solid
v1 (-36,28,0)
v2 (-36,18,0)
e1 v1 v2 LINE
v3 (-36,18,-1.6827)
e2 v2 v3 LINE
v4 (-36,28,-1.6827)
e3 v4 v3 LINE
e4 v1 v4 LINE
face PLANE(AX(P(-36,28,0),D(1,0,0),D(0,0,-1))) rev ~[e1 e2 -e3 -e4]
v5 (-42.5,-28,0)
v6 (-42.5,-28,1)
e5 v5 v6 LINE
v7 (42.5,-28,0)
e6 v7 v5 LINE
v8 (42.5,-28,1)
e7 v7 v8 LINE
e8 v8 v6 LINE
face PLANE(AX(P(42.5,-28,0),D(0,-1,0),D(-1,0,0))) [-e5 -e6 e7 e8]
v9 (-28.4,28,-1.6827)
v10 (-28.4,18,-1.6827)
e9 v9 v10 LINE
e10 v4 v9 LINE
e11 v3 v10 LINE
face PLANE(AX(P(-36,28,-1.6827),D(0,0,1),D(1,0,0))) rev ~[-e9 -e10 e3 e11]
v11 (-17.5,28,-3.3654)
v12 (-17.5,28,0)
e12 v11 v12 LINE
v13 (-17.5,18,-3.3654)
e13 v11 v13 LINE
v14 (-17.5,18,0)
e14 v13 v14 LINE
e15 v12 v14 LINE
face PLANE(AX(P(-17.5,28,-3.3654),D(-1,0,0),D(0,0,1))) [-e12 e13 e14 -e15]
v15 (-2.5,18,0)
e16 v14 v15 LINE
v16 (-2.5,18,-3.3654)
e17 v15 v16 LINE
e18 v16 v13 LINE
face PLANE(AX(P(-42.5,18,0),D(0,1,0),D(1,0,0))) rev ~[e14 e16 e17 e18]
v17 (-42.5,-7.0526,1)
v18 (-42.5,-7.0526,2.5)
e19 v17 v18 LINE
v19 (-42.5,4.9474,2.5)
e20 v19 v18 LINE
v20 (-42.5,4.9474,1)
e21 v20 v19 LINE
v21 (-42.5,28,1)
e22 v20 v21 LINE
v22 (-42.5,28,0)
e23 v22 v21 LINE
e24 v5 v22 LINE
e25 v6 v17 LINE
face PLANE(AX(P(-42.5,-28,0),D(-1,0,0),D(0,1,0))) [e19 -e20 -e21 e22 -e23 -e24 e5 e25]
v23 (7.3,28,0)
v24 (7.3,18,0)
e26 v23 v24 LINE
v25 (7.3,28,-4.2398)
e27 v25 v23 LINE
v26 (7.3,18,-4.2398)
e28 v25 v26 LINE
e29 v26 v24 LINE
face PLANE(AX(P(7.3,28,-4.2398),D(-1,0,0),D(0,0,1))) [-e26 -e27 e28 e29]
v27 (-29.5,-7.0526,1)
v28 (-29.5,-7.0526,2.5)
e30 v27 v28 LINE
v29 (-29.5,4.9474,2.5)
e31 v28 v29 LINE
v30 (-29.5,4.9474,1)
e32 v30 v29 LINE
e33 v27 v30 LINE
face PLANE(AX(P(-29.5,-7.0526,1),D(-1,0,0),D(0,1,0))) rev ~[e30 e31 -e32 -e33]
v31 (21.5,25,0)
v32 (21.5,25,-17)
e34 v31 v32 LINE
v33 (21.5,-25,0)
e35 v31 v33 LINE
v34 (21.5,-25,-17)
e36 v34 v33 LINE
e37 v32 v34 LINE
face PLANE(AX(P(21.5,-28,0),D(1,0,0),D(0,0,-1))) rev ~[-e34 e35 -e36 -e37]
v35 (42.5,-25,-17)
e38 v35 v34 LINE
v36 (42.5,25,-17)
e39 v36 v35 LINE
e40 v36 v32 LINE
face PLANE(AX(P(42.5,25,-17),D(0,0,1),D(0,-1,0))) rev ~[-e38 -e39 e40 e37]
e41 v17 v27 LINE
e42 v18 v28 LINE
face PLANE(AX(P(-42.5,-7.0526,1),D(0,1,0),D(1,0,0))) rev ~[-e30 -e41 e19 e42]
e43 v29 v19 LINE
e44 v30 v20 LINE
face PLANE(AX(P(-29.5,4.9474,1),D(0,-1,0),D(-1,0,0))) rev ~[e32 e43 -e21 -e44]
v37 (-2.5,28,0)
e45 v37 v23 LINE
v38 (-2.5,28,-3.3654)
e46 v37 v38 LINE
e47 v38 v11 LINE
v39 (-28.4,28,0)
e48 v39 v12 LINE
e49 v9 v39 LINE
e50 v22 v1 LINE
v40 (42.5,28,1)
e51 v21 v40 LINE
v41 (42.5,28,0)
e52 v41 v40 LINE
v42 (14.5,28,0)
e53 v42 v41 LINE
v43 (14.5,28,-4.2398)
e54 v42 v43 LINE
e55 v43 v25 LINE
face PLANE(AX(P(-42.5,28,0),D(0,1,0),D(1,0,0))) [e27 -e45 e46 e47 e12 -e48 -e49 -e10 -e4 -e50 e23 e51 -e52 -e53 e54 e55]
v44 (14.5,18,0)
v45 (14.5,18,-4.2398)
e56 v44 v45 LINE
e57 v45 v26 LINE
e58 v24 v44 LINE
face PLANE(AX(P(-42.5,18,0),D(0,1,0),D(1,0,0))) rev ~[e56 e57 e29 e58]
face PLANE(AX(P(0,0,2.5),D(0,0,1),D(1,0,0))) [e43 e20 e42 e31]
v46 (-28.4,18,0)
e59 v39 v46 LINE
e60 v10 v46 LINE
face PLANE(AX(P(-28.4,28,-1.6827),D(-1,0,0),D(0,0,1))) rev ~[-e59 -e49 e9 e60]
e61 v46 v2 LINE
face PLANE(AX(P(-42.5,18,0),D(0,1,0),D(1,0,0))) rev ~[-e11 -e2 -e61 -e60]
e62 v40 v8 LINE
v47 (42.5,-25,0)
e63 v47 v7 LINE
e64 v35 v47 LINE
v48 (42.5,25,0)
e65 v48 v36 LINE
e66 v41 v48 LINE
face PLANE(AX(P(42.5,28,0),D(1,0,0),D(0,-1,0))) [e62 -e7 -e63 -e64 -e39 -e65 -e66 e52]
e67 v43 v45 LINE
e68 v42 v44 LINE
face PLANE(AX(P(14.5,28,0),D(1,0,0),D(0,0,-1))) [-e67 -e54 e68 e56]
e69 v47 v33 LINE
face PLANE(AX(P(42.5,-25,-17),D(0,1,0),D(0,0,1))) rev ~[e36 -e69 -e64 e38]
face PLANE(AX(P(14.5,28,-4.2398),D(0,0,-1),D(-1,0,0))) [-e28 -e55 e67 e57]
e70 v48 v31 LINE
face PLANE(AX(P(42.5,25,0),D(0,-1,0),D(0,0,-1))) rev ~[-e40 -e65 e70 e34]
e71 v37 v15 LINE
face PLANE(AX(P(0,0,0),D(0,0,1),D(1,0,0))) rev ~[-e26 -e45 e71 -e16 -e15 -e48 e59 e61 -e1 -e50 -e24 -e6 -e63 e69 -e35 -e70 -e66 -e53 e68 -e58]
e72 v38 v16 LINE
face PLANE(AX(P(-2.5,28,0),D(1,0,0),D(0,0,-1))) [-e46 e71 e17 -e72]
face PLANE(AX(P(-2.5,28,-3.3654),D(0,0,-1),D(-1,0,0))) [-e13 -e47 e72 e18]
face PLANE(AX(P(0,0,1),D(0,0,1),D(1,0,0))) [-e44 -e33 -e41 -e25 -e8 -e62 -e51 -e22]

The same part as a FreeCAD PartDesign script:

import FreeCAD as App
import Part
import Sketcher
Q = App.Units.Quantity


def add_polygon(sketch, points):
    """Adds a closed chain of lines whose ends are joined by coincident constraints."""
    first, n = sketch.GeometryCount, len(points)
    for a, b in zip(points, points[1:] + points[:1]):
        sketch.addGeometry(Part.LineSegment(App.Vector(*a, 0), App.Vector(*b, 0)), False)
    for i in range(n):
        sketch.addConstraint(Sketcher.Constraint("Coincident", first + i, 2, first + (i + 1) % n, 1))

doc = App.newDocument("Part")
body = doc.addObject("PartDesign::Body", "Body")

sketch1 = body.newObject("Sketcher::SketchObject", "Sketch")
sketch1.AttachmentSupport = (doc.getObject("XY_Plane"), [""])
sketch1.MapMode = "FlatFace"
add_polygon(sketch1, [(-42, -28), (42, -28), (42, 28), (-42, 28)])
sketch1.addConstraint(Sketcher.Constraint("Horizontal", 0))
sketch1.addConstraint(Sketcher.Constraint("Vertical", 1))
sketch1.addConstraint(Sketcher.Constraint("Horizontal", 2))
sketch1.addConstraint(Sketcher.Constraint("Vertical", 3))
sketch1.addConstraint(Sketcher.Constraint("Symmetric", 0, 2, 2, 2, -1, 1))
sketch1.addConstraint(Sketcher.Constraint("DistanceX", 0, 1, 0, 2, Q("85 mm")))
sketch1.addConstraint(Sketcher.Constraint("DistanceY", 1, 1, 1, 2, Q("56 mm")))
pad1 = body.newObject("PartDesign::Pad", "Pad")
pad1.Profile = sketch1
pad1.Length = 1

sketch2 = body.newObject("Sketcher::SketchObject", "Sketch001")
sketch2.AttachmentSupport = (doc.getObject("YZ_Plane"), [""])
sketch2.MapMode = "FlatFace"
sketch2.AttachmentOffset = App.Placement(App.Vector(0, 0, 42.5), App.Rotation())
add_polygon(sketch2, [(25, -17), (25, 0), (-25, 0), (-25, -17)])
sketch2.addConstraint(Sketcher.Constraint("Vertical", 0))
sketch2.addConstraint(Sketcher.Constraint("Horizontal", 1))
sketch2.addConstraint(Sketcher.Constraint("Vertical", 2))
sketch2.addConstraint(Sketcher.Constraint("Horizontal", 3))
sketch2.addConstraint(Sketcher.Constraint("Symmetric", 0, 2, 1, 2, -1, 1))
sketch2.addConstraint(Sketcher.Constraint("DistanceY", 0, 1, 0, 2, Q("17 mm")))
sketch2.addConstraint(Sketcher.Constraint("DistanceX", 1, 2, 1, 1, Q("50 mm")))
pad2 = body.newObject("PartDesign::Pad", "Pad001")
pad2.Profile = sketch2
pad2.Length = 21
pad2.Reversed = True

sketch3 = body.newObject("Sketcher::SketchObject", "Sketch002")
sketch3.AttachmentSupport = (doc.getObject("XZ_Plane"), [""])
sketch3.MapMode = "FlatFace"
sketch3.AttachmentOffset = App.Placement(App.Vector(0, 0, -28), App.Rotation())
add_polygon(sketch3, [(7.3, -4.2), (7.3, 0), (14.5, 0), (14.5, -4.2)])
add_polygon(sketch3, [(-17.5, -3.4), (-17.5, 0), (-2.5, 0), (-2.5, -3.4)])
add_polygon(sketch3, [(-28.4, -1.7), (-36, -1.7), (-36, 0), (-28.4, 0)])
sketch3.addConstraint(Sketcher.Constraint("Vertical", 0))
sketch3.addConstraint(Sketcher.Constraint("Horizontal", 1))
sketch3.addConstraint(Sketcher.Constraint("Vertical", 2))
sketch3.addConstraint(Sketcher.Constraint("Horizontal", 3))
sketch3.addConstraint(Sketcher.Constraint("Vertical", 4))
sketch3.addConstraint(Sketcher.Constraint("Horizontal", 5))
sketch3.addConstraint(Sketcher.Constraint("Vertical", 6))
sketch3.addConstraint(Sketcher.Constraint("Horizontal", 7))
sketch3.addConstraint(Sketcher.Constraint("Horizontal", 8))
sketch3.addConstraint(Sketcher.Constraint("Vertical", 9))
sketch3.addConstraint(Sketcher.Constraint("Horizontal", 10))
sketch3.addConstraint(Sketcher.Constraint("Vertical", 11))
sketch3.addConstraint(Sketcher.Constraint("PointOnObject", 0, 2, -1))
sketch3.addConstraint(Sketcher.Constraint("PointOnObject", 4, 2, -1))
sketch3.addConstraint(Sketcher.Constraint("PointOnObject", 9, 2, -1))
sketch3.addConstraint(Sketcher.Constraint("DistanceX", 5, 1, 5, 2, Q("15 mm")))
sketch3.addConstraint(Sketcher.Constraint("DistanceX", 1, 1, 1, 2, Q("7.2 mm")))
sketch3.addConstraint(Sketcher.Constraint("DistanceX", 8, 2, 8, 1, Q("7.6 mm")))
sketch3.addConstraint(Sketcher.Constraint("DistanceX", 8, 2, -1, 1, Q("36 mm")))
sketch3.addConstraint(Sketcher.Constraint("DistanceX", 4, 2, 1, 2, Q("32 mm")))
sketch3.addConstraint(Sketcher.Constraint("DistanceX", -1, 1, 0, 2, Q("7.3 mm")))
sketch3.addConstraint(Sketcher.Constraint("DistanceY", 0, 1, 0, 2, Q("4.2398 mm")))
sketch3.addConstraint(Sketcher.Constraint("DistanceY", 4, 1, 4, 2, Q("3.3654 mm")))
sketch3.addConstraint(Sketcher.Constraint("DistanceY", 9, 1, 9, 2, Q("1.6827 mm")))
pad3 = body.newObject("PartDesign::Pad", "Pad002")
pad3.Profile = sketch3
pad3.Length = 10

sketch4 = body.newObject("Sketcher::SketchObject", "Sketch003")
sketch4.AttachmentSupport = (doc.getObject("XY_Plane"), [""])
sketch4.MapMode = "FlatFace"
sketch4.AttachmentOffset = App.Placement(App.Vector(0, 0, 1), App.Rotation())
add_polygon(sketch4, [(-42, 5), (-42, -7), (-30, -7), (-30, 5)])
sketch4.addConstraint(Sketcher.Constraint("Vertical", 0))
sketch4.addConstraint(Sketcher.Constraint("Horizontal", 1))
sketch4.addConstraint(Sketcher.Constraint("Vertical", 2))
sketch4.addConstraint(Sketcher.Constraint("Horizontal", 3))
sketch4.addConstraint(Sketcher.Constraint("DistanceX", 1, 1, 1, 2, Q("13 mm")))
sketch4.addConstraint(Sketcher.Constraint("DistanceY", 0, 2, 0, 1, Q("12 mm")))
sketch4.addConstraint(Sketcher.Constraint("DistanceX", 0, 2, -1, 1, Q("42.5 mm")))
sketch4.addConstraint(Sketcher.Constraint("DistanceY", 0, 2, -1, 1, Q("7.0526 mm")))
pad4 = body.newObject("PartDesign::Pad", "Pad003")
pad4.Profile = sketch4
pad4.Length = 1.5

doc.recompute()
